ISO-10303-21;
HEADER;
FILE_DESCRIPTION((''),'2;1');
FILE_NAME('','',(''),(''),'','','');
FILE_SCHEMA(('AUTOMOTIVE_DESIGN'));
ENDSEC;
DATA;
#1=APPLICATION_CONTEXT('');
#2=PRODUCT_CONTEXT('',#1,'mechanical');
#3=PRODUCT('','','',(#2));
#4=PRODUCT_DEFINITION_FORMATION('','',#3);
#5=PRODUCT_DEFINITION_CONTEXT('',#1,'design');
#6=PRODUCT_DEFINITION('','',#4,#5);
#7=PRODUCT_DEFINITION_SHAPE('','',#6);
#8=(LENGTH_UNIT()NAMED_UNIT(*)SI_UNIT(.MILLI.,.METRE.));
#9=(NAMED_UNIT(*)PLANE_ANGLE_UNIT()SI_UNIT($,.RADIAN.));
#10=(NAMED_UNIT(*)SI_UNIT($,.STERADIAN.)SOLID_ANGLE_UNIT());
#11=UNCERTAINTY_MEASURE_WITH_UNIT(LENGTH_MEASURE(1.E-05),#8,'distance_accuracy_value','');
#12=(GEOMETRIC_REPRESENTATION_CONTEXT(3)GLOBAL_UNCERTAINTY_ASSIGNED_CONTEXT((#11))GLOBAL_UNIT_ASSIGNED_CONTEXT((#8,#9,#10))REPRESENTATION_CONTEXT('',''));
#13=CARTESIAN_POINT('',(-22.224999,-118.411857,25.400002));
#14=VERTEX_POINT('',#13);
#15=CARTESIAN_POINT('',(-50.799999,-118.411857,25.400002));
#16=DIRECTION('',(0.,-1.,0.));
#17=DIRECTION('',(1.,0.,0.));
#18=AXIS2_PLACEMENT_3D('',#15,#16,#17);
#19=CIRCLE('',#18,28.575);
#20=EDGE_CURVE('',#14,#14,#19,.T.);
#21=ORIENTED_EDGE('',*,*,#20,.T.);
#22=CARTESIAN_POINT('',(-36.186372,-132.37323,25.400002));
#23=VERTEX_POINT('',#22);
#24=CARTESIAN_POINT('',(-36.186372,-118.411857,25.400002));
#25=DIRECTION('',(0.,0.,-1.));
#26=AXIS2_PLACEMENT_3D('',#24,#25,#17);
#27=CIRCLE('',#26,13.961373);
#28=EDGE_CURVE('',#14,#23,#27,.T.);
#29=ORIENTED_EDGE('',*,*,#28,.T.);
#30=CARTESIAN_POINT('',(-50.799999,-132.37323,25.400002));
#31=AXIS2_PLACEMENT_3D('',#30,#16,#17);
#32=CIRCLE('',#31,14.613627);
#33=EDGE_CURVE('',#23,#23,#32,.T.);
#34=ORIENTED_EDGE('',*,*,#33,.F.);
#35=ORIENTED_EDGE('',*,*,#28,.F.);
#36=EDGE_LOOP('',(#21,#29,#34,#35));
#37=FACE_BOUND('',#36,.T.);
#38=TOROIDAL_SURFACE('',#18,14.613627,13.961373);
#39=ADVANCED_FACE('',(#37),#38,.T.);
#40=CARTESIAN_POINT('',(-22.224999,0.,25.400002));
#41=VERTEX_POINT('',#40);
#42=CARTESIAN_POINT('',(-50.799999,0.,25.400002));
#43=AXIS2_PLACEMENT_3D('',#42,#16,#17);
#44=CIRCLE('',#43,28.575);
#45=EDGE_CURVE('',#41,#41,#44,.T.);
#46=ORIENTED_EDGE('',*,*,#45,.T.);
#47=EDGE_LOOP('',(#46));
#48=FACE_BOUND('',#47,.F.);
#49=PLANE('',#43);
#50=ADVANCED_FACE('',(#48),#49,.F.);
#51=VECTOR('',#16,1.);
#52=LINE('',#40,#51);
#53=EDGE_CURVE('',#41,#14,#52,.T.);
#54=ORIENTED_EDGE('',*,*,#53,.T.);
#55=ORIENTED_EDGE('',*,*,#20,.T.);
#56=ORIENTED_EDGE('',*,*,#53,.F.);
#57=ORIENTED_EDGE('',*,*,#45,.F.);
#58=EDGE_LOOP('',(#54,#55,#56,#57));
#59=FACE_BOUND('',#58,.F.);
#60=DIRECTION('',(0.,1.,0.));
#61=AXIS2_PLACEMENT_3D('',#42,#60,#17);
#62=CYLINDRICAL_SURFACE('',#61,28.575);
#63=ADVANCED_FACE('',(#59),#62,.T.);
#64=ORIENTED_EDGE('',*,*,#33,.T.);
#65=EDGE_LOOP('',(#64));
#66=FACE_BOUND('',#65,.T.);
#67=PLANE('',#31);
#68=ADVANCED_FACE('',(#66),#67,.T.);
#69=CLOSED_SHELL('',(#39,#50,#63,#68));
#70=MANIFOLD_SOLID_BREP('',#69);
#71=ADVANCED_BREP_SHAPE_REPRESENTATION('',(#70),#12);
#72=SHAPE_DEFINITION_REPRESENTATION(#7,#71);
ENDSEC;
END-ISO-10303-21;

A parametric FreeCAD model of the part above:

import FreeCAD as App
import Part
import Sketcher
Q = App.Units.Quantity


def edges_at(feature, points):
    """Names of the edges that pass closest to the given points."""
    edges = feature.Shape.Edges
    near = lambda p: min(range(len(edges)), key=lambda i: edges[i].distToShape(Part.Vertex(*p))[0])
    return sorted({f"Edge{near(p) + 1}" for p in points})

doc = App.newDocument("Part")
params = doc.addObject("Spreadsheet::Sheet", "Params")
for row, (alias, value) in enumerate([
    ("sketch1_diameter", "2.25 in"),
    ("pad1_length", "132.37323 mm"),
    ("pad2_length", "17.41577 mm"),
    ("fillet_radius", "13.961373 mm"),
], start=1):
    params.set(f"A{row}", alias)
    params.set(f"B{row}", "=" + value)
    params.setAlias(f"B{row}", alias)

body = doc.addObject("PartDesign::Body", "Body")

sketch1 = body.newObject("Sketcher::SketchObject", "Sketch")
sketch1.AttachmentSupport = (doc.getObject("XZ_Plane"), [""])
sketch1.MapMode = "FlatFace"
sketch1.addGeometry(Part.Circle(App.Vector(-51, 25, 0), App.Vector(0, 0, 1), 29), False)
sketch1.addConstraint([
    Sketcher.Constraint("Diameter", 0, Q("2.25 in")),
    Sketcher.Constraint("DistanceX", 0, 3, -1, 1, Q("2 in")),
    Sketcher.Constraint("DistanceY", -1, 1, 0, 3, Q("1.0000001 in")),
])
sketch1.setExpression("Constraints[0]", "Params.sketch1_diameter")
pad1 = body.newObject("PartDesign::Pad", "Pad")
pad1.Profile = sketch1
pad1.setExpression("Length", "Params.pad1_length")

sketch2 = body.newObject("Sketcher::SketchObject", "Sketch001")
sketch2.AttachmentSupport = (doc.getObject("XZ_Plane"), [""])
sketch2.MapMode = "FlatFace"
sketch2.AttachmentOffset = App.Placement(App.Vector(0, 0, 132.37323), App.Rotation())
sketch2.addGeometry(Part.Circle(App.Vector(-51, 25, 0), App.Vector(0, 0, 1), 21), False)
sketch2.addConstraint([
    Sketcher.Constraint("DistanceX", 0, 3, -1, 1, Q("2 in")),
    Sketcher.Constraint("DistanceY", -1, 1, 0, 3, Q("1.0000001 in")),
    Sketcher.Constraint("Diameter", 0, Q("41.904774 mm")),
])
pad2 = body.newObject("PartDesign::Pad", "Pad001")
pad2.Profile = sketch2
pad2.setExpression("Length", "Params.pad2_length")
pad2.Reversed = True
doc.recompute()

fillet = body.newObject("PartDesign::Fillet", "Fillet")
fillet.Base = (pad2, edges_at(pad2, [(-79.375, -132.373, 25.4)]))
fillet.setExpression("Radius", "Params.fillet_radius")

doc.recompute()
